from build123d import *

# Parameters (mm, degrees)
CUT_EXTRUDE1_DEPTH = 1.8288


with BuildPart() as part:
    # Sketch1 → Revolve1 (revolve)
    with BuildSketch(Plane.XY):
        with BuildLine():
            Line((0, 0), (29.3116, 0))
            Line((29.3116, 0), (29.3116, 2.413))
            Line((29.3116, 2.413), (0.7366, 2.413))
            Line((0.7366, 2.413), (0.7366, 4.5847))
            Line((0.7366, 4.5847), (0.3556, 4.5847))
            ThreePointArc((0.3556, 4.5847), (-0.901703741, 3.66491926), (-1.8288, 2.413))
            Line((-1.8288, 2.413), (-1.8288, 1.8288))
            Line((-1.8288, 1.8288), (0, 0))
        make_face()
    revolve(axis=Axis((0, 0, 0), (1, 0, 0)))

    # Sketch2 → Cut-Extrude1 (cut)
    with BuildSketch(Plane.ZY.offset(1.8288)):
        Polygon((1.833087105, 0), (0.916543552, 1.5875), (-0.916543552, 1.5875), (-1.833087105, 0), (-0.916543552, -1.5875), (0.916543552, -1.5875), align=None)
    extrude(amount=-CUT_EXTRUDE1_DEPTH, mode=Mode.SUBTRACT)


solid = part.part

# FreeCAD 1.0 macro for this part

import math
import FreeCAD as App
import Part
import Sketcher
Q = App.Units.Quantity


def add_polygon(sketch, points):
    """Adds a closed chain of lines whose ends are joined by coincident constraints."""
    first, n = sketch.GeometryCount, len(points)
    for a, b in zip(points, points[1:] + points[:1]):
        sketch.addGeometry(Part.LineSegment(App.Vector(*a, 0), App.Vector(*b, 0)), False)
    for i in range(n):
        sketch.addConstraint(Sketcher.Constraint("Coincident", first + i, 2, first + (i + 1) % n, 1))

doc = App.newDocument("Part")
params = doc.addObject("Spreadsheet::Sheet", "Params")
for row, (alias, value) in enumerate([
    ("sketch1_radius", "0.204 in"),
    ("sketch1_width", "1.154 in"),
    ("sketch1_width2", "1.125 in"),
    ("sketch1_width3", "0.015 in"),
    ("sketch1_height", "0.095 in"),
    ("revolution_angle", "360 deg"),
    ("pocket1_length", "0.072 in"),
], start=1):
    params.set(f"A{row}", alias)
    params.set(f"B{row}", "=" + value)
    params.setAlias(f"B{row}", alias)

body = doc.addObject("PartDesign::Body", "Body")

# Sketch on XY plane
sketch1 = body.newObject("Sketcher::SketchObject", "Sketch")
sketch1.AttachmentSupport = (doc.getObject("XY_Plane"), [""])
sketch1.MapMode = "FlatFace"
sketch1.addGeometry([
    Part.LineSegment(App.Vector(0, 0, 0), App.Vector(29.3116, 0, 0)),  # 0
    Part.LineSegment(App.Vector(29.3116, 0, 0), App.Vector(29.3116, 2.413, 0)),  # 1
    Part.LineSegment(App.Vector(29.3116, 2.413, 0), App.Vector(0.7366, 2.413, 0)),  # 2
    Part.LineSegment(App.Vector(0.7366, 2.413, 0), App.Vector(0.7366, 4.5847, 0)),  # 3
    Part.LineSegment(App.Vector(0.7366, 4.5847, 0), App.Vector(0.3556, 4.5847, 0)),  # 4
    Part.ArcOfCircle(Part.Circle(App.Vector(2.751543, -0.009692, 0), App.Vector(0, 0, 1), 5.1816), math.radians(117.541726), math.radians(152.124188)),  # 5
    Part.LineSegment(App.Vector(-1.8288, 2.413, 0), App.Vector(-1.8288, 1.8288, 0)),  # 6
    Part.LineSegment(App.Vector(-1.8288, 1.8288, 0), App.Vector(0, 0, 0)),  # 7
], False)
sketch1.addConstraint([
    Sketcher.Constraint("Coincident", 0, 2, 1, 1),
    Sketcher.Constraint("Coincident", 1, 2, 2, 1),
    Sketcher.Constraint("Coincident", 2, 2, 3, 1),
    Sketcher.Constraint("Coincident", 3, 2, 4, 1),
    Sketcher.Constraint("Coincident", 4, 2, 5, 1),
    Sketcher.Constraint("Coincident", 5, 2, 6, 1),
    Sketcher.Constraint("Coincident", 6, 2, 7, 1),
    Sketcher.Constraint("Coincident", 7, 2, 0, 1),
    Sketcher.Constraint("Horizontal", 0),
    Sketcher.Constraint("Vertical", 1),
    Sketcher.Constraint("Horizontal", 2),
    Sketcher.Constraint("Vertical", 3),
    Sketcher.Constraint("Horizontal", 4),
    Sketcher.Constraint("Vertical", 6),
    Sketcher.Constraint("Coincident", 7, 2, -1, 1),
    Sketcher.Constraint("Horizontal", 2, 2, 5, 2),
    Sketcher.Constraint("Angle", 7, Q("-45 deg")),
    Sketcher.Constraint("Radius", 5, Q("0.204 in")),
    Sketcher.Constraint("DistanceX", 0, 1, 0, 2, Q("1.154 in")),
    Sketcher.Constraint("DistanceX", 2, 2, 2, 1, Q("1.125 in")),
    Sketcher.Constraint("DistanceX", 4, 2, 4, 1, Q("0.015 in")),
    Sketcher.Constraint("DistanceY", 1, 1, 1, 2, Q("0.095 in")),
    Sketcher.Constraint("DistanceY", 6, 2, 6, 1, Q("0.023 in")),
    Sketcher.Constraint("DistanceY", 3, 1, 3, 2, Q("0.0855 in")),
])
sketch1.setExpression("Constraints[17]", "Params.sketch1_radius")
sketch1.setExpression("Constraints[18]", "Params.sketch1_width")
sketch1.setExpression("Constraints[19]", "Params.sketch1_width2")
sketch1.setExpression("Constraints[20]", "Params.sketch1_width3")
sketch1.setExpression("Constraints[21]", "Params.sketch1_height")
revolution = body.newObject("PartDesign::Revolution", "Revolution")
revolution.Profile = sketch1
revolution.ReferenceAxis = (sketch1, ["H_Axis"])
revolution.setExpression("Angle", "Params.revolution_angle")

# Sketch on YZ plane
sketch2 = body.newObject("Sketcher::SketchObject", "Sketch001")
sketch2.AttachmentSupport = (doc.getObject("YZ_Plane"), [""])
sketch2.MapMode = "FlatFace"
sketch2.AttachmentOffset = App.Placement(App.Vector(0, 0, -0.072 * 25.4), App.Rotation())
add_polygon(sketch2, [(0, 1.833087), (1.5875, 0.916544), (1.5875, -0.916544), (0, -1.833087), (-1.5875, -0.916544), (-1.5875, 0.916544)])  # lines 0-5
sketch2.addConstraint([
    Sketcher.Constraint("Vertical", 1),
    Sketcher.Constraint("Vertical", 4),
    Sketcher.Constraint("Symmetric", 0, 2, 3, 2, -1, 1),
    Sketcher.Constraint("Symmetric", 2, 2, 5, 2, -1, 1),
    Sketcher.Constraint("PointOnObject", 2, 2, -2),
    Sketcher.Constraint("Parallel", 2, 5),
    Sketcher.Constraint("Horizontal", 1, 2, 3, 2),
    Sketcher.Constraint("Angle", 0, Q("-30 deg")),
    Sketcher.Constraint("DistanceX", -1, 1, 0, 2, Q("0.0625 in")),
    Sketcher.Constraint("DistanceY", 1, 2, 1, 1, 1.833087),
])
pocket1 = body.newObject("PartDesign::Pocket", "Pocket")
pocket1.Profile = sketch2
pocket1.setExpression("Length", "Params.pocket1_length")
pocket1.Reversed = True

doc.recompute()
